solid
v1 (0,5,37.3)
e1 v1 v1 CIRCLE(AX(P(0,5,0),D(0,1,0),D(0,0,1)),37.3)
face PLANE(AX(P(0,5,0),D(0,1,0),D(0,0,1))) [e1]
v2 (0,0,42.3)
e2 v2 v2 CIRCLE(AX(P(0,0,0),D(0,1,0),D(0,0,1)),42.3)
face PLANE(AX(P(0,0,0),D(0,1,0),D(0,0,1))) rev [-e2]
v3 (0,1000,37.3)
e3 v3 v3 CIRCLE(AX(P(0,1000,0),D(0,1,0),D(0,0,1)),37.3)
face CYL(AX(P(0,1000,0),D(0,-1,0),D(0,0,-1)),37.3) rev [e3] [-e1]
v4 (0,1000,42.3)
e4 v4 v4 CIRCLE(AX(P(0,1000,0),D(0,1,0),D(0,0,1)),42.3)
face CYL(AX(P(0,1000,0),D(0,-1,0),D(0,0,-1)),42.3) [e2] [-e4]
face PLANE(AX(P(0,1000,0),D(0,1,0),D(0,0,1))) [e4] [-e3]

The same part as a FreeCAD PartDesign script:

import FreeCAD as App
import Part
import Sketcher
from FreeCAD import Vector
Q = App.Units.Quantity


def faces_at(feature, points):
    """Names of the faces that lie closest to the given points."""
    faces = feature.Shape.Faces
    near = lambda p: min(range(len(faces)), key=lambda i: faces[i].distToShape(Part.Vertex(*p))[0])
    return sorted({f"Face{near(p) + 1}" for p in points})

doc = App.newDocument("Part")
body = doc.addObject("PartDesign::Body", "Body")

# Sketch on XZ plane
sketch1 = doc.addObject("Sketcher::SketchObject", "Sketch")
body.addObject(sketch1)
sketch1.AttachmentSupport = (doc.XZ_Plane, [""])
sketch1.MapMode = "FlatFace"
sketch1.addGeometry(Part.Circle(Vector(0, 0, 0), Vector(0, 0, 1), 42), False)
sketch1.addConstraint([
    Sketcher.Constraint("Coincident", 0, 3, -1, 1),
    Sketcher.Constraint("Diameter", 0, Q("84.6 mm")),
])
pad1 = doc.addObject("PartDesign::Pad", "Pad")
body.addObject(pad1)
pad1.Profile = sketch1
pad1.Length = 1000
pad1.Reversed = True
doc.recompute()

thickness = doc.addObject("PartDesign::Thickness", "Thickness")
body.addObject(thickness)
thickness.Base = (pad1, faces_at(pad1, [(0, 1000, 0)]))
thickness.Value = 5
thickness.Reversed = True
thickness.Join = "Intersection"

doc.recompute()
